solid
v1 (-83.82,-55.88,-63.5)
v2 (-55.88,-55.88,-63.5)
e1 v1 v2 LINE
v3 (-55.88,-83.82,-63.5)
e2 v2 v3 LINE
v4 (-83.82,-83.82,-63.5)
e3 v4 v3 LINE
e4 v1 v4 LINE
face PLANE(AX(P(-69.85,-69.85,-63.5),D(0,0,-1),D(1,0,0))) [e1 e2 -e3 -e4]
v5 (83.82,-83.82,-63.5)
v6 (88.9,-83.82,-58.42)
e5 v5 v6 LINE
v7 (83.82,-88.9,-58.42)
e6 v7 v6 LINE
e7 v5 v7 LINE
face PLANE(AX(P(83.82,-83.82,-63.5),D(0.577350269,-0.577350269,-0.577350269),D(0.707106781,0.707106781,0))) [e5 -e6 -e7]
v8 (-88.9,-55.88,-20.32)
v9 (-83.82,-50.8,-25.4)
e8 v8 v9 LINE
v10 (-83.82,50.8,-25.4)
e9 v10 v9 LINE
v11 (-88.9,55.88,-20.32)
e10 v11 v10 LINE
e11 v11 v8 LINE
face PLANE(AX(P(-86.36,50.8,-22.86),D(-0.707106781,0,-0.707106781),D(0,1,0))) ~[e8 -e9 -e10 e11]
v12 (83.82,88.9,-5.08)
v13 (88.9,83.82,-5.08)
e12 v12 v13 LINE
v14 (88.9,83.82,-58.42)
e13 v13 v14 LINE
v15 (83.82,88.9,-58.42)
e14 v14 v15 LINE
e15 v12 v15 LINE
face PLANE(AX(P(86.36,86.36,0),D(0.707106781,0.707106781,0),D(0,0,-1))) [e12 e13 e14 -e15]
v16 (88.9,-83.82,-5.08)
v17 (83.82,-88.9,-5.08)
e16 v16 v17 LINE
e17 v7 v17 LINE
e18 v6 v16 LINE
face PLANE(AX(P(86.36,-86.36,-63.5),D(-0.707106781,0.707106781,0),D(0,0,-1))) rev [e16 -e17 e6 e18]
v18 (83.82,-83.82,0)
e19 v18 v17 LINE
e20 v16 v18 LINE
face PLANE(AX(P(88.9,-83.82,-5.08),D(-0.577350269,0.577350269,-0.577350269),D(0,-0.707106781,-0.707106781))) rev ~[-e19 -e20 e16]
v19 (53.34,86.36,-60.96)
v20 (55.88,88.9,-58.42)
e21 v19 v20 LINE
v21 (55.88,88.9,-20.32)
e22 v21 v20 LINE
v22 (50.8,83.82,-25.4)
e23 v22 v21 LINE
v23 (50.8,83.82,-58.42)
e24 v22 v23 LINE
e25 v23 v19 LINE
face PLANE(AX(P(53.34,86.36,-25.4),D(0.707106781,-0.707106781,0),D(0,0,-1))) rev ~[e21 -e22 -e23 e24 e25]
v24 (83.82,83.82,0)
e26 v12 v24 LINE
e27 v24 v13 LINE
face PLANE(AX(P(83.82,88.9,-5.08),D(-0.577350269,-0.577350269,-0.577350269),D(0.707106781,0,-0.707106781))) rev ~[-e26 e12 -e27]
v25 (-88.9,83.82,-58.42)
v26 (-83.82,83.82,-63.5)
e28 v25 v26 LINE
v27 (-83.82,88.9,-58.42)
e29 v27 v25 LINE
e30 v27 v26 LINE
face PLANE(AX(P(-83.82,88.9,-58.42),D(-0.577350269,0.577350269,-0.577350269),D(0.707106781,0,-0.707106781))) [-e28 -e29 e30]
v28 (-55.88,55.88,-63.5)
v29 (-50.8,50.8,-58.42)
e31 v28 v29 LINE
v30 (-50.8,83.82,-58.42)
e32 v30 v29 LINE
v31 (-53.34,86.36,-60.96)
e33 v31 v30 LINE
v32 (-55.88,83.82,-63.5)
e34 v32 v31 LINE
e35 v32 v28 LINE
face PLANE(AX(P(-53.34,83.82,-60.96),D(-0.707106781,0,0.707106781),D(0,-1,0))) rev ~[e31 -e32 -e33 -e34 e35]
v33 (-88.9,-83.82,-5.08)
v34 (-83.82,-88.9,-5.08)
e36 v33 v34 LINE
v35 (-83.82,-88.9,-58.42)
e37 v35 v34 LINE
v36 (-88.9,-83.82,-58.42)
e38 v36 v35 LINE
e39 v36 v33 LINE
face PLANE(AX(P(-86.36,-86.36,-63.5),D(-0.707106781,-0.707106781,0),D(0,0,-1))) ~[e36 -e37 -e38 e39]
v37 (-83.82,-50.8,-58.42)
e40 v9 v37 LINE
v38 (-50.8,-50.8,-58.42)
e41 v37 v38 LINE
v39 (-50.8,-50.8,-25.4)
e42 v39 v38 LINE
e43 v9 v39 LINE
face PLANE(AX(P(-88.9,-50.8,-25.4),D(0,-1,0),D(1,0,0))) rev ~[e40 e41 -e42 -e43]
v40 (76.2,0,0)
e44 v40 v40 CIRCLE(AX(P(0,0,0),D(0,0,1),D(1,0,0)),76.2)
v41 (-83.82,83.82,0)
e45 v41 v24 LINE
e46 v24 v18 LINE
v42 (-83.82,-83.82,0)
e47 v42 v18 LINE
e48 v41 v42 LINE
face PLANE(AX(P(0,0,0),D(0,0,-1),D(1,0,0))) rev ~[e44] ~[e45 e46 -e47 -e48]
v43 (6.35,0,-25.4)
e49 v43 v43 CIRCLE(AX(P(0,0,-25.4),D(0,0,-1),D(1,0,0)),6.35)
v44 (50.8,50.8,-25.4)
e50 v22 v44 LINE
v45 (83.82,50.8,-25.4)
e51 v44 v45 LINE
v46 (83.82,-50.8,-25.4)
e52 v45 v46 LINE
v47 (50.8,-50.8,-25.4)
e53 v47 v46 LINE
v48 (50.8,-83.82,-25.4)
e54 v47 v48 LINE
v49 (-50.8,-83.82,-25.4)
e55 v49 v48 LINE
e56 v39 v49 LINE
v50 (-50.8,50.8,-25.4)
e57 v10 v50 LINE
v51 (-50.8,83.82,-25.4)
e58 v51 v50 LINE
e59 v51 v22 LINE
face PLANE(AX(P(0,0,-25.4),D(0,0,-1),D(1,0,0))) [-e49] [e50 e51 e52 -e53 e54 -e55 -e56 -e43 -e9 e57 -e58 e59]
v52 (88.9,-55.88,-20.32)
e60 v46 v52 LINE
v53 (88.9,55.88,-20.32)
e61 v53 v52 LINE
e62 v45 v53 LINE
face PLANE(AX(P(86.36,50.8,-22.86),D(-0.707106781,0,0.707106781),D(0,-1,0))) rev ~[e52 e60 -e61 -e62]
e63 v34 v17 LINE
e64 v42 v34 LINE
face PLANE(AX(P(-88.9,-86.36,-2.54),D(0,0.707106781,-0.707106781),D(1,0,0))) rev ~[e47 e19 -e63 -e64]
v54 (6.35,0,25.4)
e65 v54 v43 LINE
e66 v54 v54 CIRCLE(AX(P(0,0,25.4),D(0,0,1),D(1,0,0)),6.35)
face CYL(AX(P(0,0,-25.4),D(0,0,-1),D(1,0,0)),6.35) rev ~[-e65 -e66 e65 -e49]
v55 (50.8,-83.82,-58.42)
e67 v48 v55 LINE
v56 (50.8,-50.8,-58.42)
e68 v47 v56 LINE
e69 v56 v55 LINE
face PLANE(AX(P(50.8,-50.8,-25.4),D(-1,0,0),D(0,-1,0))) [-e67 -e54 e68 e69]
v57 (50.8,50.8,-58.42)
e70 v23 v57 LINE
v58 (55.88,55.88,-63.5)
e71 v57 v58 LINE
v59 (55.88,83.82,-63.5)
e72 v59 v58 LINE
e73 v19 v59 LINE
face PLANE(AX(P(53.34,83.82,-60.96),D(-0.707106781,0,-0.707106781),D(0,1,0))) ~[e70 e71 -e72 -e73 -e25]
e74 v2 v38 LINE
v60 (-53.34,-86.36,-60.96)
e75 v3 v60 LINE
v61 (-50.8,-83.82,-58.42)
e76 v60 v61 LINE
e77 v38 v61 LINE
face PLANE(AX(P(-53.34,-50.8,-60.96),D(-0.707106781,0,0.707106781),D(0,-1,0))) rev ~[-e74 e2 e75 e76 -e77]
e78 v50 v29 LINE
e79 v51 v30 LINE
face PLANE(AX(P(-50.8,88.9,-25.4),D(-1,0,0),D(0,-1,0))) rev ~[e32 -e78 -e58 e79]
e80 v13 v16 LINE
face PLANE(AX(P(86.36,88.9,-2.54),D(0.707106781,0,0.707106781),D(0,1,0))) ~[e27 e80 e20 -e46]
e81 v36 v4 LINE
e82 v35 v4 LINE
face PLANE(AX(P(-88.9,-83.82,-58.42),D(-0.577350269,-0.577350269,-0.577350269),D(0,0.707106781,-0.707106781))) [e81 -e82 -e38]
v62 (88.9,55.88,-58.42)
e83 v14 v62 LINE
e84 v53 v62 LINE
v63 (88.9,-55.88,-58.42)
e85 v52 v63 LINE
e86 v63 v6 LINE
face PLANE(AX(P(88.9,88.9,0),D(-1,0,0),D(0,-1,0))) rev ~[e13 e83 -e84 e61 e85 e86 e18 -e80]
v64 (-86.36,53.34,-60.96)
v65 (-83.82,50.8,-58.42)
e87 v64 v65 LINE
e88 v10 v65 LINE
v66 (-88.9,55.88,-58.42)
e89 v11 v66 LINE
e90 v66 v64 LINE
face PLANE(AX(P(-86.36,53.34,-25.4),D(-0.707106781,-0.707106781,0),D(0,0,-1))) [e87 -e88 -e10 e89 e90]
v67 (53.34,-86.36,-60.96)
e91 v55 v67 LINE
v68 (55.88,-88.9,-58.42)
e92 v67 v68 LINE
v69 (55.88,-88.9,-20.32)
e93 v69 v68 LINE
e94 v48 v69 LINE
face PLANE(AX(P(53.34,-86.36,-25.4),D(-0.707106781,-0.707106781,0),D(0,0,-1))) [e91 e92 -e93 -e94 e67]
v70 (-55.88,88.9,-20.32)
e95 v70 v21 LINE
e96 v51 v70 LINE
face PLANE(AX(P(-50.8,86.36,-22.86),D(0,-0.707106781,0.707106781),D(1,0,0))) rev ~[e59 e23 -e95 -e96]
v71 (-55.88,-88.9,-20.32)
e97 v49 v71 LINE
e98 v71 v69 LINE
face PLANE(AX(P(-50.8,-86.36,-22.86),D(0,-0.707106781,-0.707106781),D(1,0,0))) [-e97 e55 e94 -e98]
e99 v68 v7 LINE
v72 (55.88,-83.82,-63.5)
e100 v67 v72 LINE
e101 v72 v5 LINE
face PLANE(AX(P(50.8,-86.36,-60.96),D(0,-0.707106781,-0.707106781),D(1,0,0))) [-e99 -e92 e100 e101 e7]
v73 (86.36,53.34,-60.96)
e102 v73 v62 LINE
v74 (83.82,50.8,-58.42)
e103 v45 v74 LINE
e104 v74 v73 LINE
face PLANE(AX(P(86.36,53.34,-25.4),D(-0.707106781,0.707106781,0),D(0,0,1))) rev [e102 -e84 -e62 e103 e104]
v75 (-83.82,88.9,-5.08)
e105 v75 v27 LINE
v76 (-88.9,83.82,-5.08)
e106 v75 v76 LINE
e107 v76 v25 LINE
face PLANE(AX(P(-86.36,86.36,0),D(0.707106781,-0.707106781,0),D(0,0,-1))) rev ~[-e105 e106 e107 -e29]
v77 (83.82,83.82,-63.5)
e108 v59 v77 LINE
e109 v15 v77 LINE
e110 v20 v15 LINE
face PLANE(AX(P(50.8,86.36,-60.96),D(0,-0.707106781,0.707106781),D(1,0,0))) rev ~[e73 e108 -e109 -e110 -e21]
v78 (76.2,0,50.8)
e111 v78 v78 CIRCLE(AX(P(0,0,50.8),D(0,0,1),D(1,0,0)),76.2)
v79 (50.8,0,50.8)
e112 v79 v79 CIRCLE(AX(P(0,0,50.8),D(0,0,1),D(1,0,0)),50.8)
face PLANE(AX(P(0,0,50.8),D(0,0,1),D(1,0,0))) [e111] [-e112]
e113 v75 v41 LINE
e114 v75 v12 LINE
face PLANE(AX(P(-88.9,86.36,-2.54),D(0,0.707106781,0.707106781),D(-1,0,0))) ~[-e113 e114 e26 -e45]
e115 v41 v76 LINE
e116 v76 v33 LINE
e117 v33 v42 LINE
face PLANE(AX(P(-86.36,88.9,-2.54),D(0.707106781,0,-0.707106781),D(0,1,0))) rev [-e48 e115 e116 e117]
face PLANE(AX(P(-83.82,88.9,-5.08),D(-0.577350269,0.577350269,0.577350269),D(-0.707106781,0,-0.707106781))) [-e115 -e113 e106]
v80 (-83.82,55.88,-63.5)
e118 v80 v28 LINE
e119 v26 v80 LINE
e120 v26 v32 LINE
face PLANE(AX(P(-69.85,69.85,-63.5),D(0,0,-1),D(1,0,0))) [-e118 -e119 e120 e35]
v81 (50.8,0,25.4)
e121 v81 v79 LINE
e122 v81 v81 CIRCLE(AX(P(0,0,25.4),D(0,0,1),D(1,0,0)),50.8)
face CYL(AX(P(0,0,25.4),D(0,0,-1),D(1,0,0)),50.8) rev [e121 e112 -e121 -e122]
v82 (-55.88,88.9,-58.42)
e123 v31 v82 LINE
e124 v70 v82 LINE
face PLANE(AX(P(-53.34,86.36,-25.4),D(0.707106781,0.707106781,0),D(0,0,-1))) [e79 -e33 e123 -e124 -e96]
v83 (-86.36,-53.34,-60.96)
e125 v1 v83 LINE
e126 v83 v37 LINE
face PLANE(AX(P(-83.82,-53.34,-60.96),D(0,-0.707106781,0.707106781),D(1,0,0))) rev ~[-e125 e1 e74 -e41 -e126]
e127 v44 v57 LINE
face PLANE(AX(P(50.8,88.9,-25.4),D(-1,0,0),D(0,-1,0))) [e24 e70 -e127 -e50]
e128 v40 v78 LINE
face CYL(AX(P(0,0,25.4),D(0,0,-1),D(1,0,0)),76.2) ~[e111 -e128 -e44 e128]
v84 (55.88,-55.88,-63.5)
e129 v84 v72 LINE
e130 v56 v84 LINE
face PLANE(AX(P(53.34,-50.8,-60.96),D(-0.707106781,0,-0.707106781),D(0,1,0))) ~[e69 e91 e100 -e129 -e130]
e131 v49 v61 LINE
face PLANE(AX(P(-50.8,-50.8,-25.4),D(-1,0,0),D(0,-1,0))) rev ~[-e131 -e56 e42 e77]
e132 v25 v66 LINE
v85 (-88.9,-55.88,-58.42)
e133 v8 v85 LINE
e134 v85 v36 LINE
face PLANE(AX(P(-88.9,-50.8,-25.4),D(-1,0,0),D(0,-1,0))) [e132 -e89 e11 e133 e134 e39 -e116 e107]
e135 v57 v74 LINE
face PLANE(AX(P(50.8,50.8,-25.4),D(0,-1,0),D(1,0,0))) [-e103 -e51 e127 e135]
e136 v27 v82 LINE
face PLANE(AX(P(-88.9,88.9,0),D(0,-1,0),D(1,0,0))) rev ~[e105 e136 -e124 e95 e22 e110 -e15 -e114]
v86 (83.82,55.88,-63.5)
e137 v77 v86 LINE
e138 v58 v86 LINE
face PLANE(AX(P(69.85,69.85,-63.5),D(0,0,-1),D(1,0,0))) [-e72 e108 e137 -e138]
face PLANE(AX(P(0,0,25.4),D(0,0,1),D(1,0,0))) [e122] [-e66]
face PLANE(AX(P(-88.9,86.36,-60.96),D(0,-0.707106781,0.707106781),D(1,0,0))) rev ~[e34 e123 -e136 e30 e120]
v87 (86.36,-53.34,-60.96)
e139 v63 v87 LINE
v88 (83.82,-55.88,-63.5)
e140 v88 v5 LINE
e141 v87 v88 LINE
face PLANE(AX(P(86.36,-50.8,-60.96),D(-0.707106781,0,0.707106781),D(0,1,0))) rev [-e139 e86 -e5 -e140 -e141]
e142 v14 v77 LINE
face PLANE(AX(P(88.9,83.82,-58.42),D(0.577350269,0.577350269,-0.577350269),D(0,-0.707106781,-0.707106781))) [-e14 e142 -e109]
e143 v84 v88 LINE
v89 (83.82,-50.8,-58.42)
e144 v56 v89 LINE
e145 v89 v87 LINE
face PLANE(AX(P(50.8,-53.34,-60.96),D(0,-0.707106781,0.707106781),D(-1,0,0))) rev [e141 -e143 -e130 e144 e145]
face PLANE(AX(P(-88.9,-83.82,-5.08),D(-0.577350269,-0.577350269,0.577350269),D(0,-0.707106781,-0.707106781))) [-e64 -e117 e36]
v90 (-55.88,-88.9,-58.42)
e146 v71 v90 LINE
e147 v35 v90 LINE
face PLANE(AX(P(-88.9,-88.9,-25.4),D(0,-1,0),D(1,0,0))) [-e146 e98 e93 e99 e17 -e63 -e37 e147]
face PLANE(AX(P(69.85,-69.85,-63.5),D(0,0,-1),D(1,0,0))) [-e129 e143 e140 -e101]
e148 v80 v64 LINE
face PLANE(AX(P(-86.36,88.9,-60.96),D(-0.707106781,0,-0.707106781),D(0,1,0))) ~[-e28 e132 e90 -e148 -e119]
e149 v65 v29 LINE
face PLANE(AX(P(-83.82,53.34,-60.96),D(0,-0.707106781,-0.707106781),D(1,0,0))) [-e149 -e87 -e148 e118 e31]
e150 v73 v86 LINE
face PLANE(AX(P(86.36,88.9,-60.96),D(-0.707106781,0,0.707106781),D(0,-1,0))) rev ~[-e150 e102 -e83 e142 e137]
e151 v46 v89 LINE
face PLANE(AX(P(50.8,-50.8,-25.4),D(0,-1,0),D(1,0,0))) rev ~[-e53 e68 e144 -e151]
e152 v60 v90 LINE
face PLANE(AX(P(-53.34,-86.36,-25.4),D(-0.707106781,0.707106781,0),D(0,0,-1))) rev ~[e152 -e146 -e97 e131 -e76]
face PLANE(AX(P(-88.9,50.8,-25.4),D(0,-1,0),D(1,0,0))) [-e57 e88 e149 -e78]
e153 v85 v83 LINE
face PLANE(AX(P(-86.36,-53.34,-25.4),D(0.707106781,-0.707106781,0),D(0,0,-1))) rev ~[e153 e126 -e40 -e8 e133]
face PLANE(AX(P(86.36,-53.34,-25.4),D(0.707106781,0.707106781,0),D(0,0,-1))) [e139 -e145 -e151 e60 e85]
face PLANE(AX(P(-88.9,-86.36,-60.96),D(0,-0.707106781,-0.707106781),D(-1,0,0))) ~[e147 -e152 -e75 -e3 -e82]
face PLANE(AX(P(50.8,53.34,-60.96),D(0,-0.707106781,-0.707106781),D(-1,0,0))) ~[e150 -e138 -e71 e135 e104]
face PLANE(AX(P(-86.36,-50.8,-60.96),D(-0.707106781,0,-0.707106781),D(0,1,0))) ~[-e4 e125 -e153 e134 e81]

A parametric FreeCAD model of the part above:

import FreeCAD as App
import Part
import Sketcher
Q = App.Units.Quantity


def edges_at(feature, points):
    """Names of the edges that pass closest to the given points."""
    edges = feature.Shape.Edges
    near = lambda p: min(range(len(edges)), key=lambda i: edges[i].distToShape(Part.Vertex(*p))[0])
    return sorted({f"Edge{near(p) + 1}" for p in points})

doc = App.newDocument("Part")
body = doc.addObject("PartDesign::Body", "Body")

sketch1 = doc.addObject("Sketcher::SketchObject", "Sketch")
body.addObject(sketch1)
sketch1.AttachmentSupport = (doc.XY_Plane, [""])
sketch1.MapMode = "FlatFace"
sketch1.addGeometry(Part.Circle(App.Vector(0, 0, 0), App.Vector(0, 0, 1), 76.2), False)
sketch1.addConstraint(Sketcher.Constraint("Coincident", 0, 3, -1, 1))
sketch1.addConstraint(Sketcher.Constraint("Diameter", 0, Q("6 in")))
pad1 = doc.addObject("PartDesign::Pad", "Pad")
body.addObject(pad1)
pad1.Profile = sketch1
pad1.Length = Q("1 in")

sketch2 = doc.addObject("Sketcher::SketchObject", "Sketch001")
body.addObject(sketch2)
sketch2.AttachmentSupport = (doc.XY_Plane, [""])
sketch2.MapMode = "FlatFace"
sketch2.AttachmentOffset = App.Placement(App.Vector(0, 0, 1 * 25.4), App.Rotation())
sketch2.addGeometry(Part.Circle(App.Vector(0, 0, 0), App.Vector(0, 0, 1), 76.2), False)
sketch2.addGeometry(Part.Circle(App.Vector(0, 0, 0), App.Vector(0, 0, 1), 50.8), False)
sketch2.addConstraint(Sketcher.Constraint("Coincident", 0, 3, -1, 1))
sketch2.addConstraint(Sketcher.Constraint("Coincident", 1, 3, -1, 1))
sketch2.addConstraint(Sketcher.Constraint("Diameter", 0, Q("6 in")))
sketch2.addConstraint(Sketcher.Constraint("Diameter", 1, Q("4 in")))
pad2 = doc.addObject("PartDesign::Pad", "Pad001")
body.addObject(pad2)
pad2.Profile = sketch2
pad2.Length = Q("1 in")

sketch3 = doc.addObject("Sketcher::SketchObject", "Sketch002")
body.addObject(sketch3)
sketch3.AttachmentSupport = (doc.XY_Plane, [""])
sketch3.MapMode = "FlatFace"
sketch3.AttachmentOffset = App.Placement(App.Vector(0, 0, 1 * 25.4), App.Rotation())
sketch3.addGeometry(Part.Circle(App.Vector(0, 0, 0), App.Vector(0, 0, 1), 6.35), False)
sketch3.addConstraint(Sketcher.Constraint("Coincident", 0, 3, -1, 1))
sketch3.addConstraint(Sketcher.Constraint("Diameter", 0, Q("0.5 in")))
pocket1 = doc.addObject("PartDesign::Pocket", "Pocket")
body.addObject(pocket1)
pocket1.Profile = sketch3
pocket1.Length = Q("6.41 in")

sketch4 = doc.addObject("Sketcher::SketchObject", "Sketch003")
body.addObject(sketch4)
sketch4.AttachmentSupport = (doc.XY_Plane, [""])
sketch4.MapMode = "FlatFace"
sketch4.addGeometry(Part.LineSegment(App.Vector(-88.9, -88.9, 0), App.Vector(-88.9, 88.9, 0)), False)
sketch4.addGeometry(Part.LineSegment(App.Vector(-88.9, 88.9, 0), App.Vector(88.9, 88.9, 0)), False)
sketch4.addGeometry(Part.LineSegment(App.Vector(88.9, 88.9, 0), App.Vector(88.9, -88.9, 0)), False)
sketch4.addGeometry(Part.LineSegment(App.Vector(88.9, -88.9, 0), App.Vector(-88.9, -88.9, 0)), False)
sketch4.addConstraint(Sketcher.Constraint("Coincident", 0, 2, 1, 1))
sketch4.addConstraint(Sketcher.Constraint("Coincident", 1, 2, 2, 1))
sketch4.addConstraint(Sketcher.Constraint("Coincident", 2, 2, 3, 1))
sketch4.addConstraint(Sketcher.Constraint("Coincident", 3, 2, 0, 1))
sketch4.addConstraint(Sketcher.Constraint("Vertical", 0))
sketch4.addConstraint(Sketcher.Constraint("Horizontal", 1))
sketch4.addConstraint(Sketcher.Constraint("Vertical", 2))
sketch4.addConstraint(Sketcher.Constraint("Horizontal", 3))
sketch4.addConstraint(Sketcher.Constraint("Symmetric", 0, 2, 2, 2, -1, 1))
sketch4.addConstraint(Sketcher.Constraint("Equal", 3, 0))
sketch4.addConstraint(Sketcher.Constraint("DistanceX", 1, 1, 1, 2, Q("7 in")))
pad3 = doc.addObject("PartDesign::Pad", "Pad002")
body.addObject(pad3)
pad3.Profile = sketch4
pad3.Length = Q("1 in")
pad3.Reversed = True

sketch5 = doc.addObject("Sketcher::SketchObject", "Sketch004")
body.addObject(sketch5)
sketch5.AttachmentSupport = (doc.XY_Plane, [""])
sketch5.MapMode = "FlatFace"
sketch5.AttachmentOffset = App.Placement(App.Vector(0, 0, -1 * 25.4), App.Rotation())
sketch5.addGeometry(Part.Circle(App.Vector(0, 0, 0), App.Vector(0, 0, 1), 6.35), False)
sketch5.addConstraint(Sketcher.Constraint("Coincident", 0, 3, -1, 1))
sketch5.addConstraint(Sketcher.Constraint("Diameter", 0, Q("0.5 in")))
pocket2 = doc.addObject("PartDesign::Pocket", "Pocket001")
body.addObject(pocket2)
pocket2.Profile = sketch5
pocket2.Length = Q("2.67 in")
pocket2.Reversed = True

sketch6 = doc.addObject("Sketcher::SketchObject", "Sketch005")
body.addObject(sketch6)
sketch6.AttachmentSupport = (doc.XY_Plane, [""])
sketch6.MapMode = "FlatFace"
sketch6.AttachmentOffset = App.Placement(App.Vector(0, 0, -1 * 25.4), App.Rotation())
sketch6.addGeometry(Part.LineSegment(App.Vector(-88.9, -88.9, 0), App.Vector(-88.9, -50.8, 0)), False)
sketch6.addGeometry(Part.LineSegment(App.Vector(-88.9, -50.8, 0), App.Vector(-50.8, -50.8, 0)), False)
sketch6.addGeometry(Part.LineSegment(App.Vector(-50.8, -50.8, 0), App.Vector(-50.8, -88.9, 0)), False)
sketch6.addGeometry(Part.LineSegment(App.Vector(-50.8, -88.9, 0), App.Vector(-88.9, -88.9, 0)), False)
sketch6.addGeometry(Part.LineSegment(App.Vector(-88.9, 50.8, 0), App.Vector(-88.9, 88.9, 0)), False)
sketch6.addGeometry(Part.LineSegment(App.Vector(-88.9, 88.9, 0), App.Vector(-50.8, 88.9, 0)), False)
sketch6.addGeometry(Part.LineSegment(App.Vector(-50.8, 88.9, 0), App.Vector(-50.8, 50.8, 0)), False)
sketch6.addGeometry(Part.LineSegment(App.Vector(-50.8, 50.8, 0), App.Vector(-88.9, 50.8, 0)), False)
sketch6.addGeometry(Part.LineSegment(App.Vector(50.8, -88.9, 0), App.Vector(50.8, -50.8, 0)), False)
sketch6.addGeometry(Part.LineSegment(App.Vector(50.8, -50.8, 0), App.Vector(88.9, -50.8, 0)), False)
sketch6.addGeometry(Part.LineSegment(App.Vector(88.9, -50.8, 0), App.Vector(88.9, -88.9, 0)), False)
sketch6.addGeometry(Part.LineSegment(App.Vector(88.9, -88.9, 0), App.Vector(50.8, -88.9, 0)), False)
sketch6.addGeometry(Part.LineSegment(App.Vector(50.8, 50.8, 0), App.Vector(50.8, 88.9, 0)), False)
sketch6.addGeometry(Part.LineSegment(App.Vector(50.8, 88.9, 0), App.Vector(88.9, 88.9, 0)), False)
sketch6.addGeometry(Part.LineSegment(App.Vector(88.9, 88.9, 0), App.Vector(88.9, 50.8, 0)), False)
sketch6.addGeometry(Part.LineSegment(App.Vector(88.9, 50.8, 0), App.Vector(50.8, 50.8, 0)), False)
sketch6.addConstraint(Sketcher.Constraint("Coincident", 0, 2, 1, 1))
sketch6.addConstraint(Sketcher.Constraint("Coincident", 1, 2, 2, 1))
sketch6.addConstraint(Sketcher.Constraint("Coincident", 2, 2, 3, 1))
sketch6.addConstraint(Sketcher.Constraint("Coincident", 3, 2, 0, 1))
sketch6.addConstraint(Sketcher.Constraint("Coincident", 4, 2, 5, 1))
sketch6.addConstraint(Sketcher.Constraint("Coincident", 5, 2, 6, 1))
sketch6.addConstraint(Sketcher.Constraint("Coincident", 6, 2, 7, 1))
sketch6.addConstraint(Sketcher.Constraint("Coincident", 7, 2, 4, 1))
sketch6.addConstraint(Sketcher.Constraint("Coincident", 8, 2, 9, 1))
sketch6.addConstraint(Sketcher.Constraint("Coincident", 9, 2, 10, 1))
sketch6.addConstraint(Sketcher.Constraint("Coincident", 10, 2, 11, 1))
sketch6.addConstraint(Sketcher.Constraint("Coincident", 11, 2, 8, 1))
sketch6.addConstraint(Sketcher.Constraint("Coincident", 12, 2, 13, 1))
sketch6.addConstraint(Sketcher.Constraint("Coincident", 13, 2, 14, 1))
sketch6.addConstraint(Sketcher.Constraint("Coincident", 14, 2, 15, 1))
sketch6.addConstraint(Sketcher.Constraint("Coincident", 15, 2, 12, 1))
sketch6.addConstraint(Sketcher.Constraint("Vertical", 0))
sketch6.addConstraint(Sketcher.Constraint("Horizontal", 1))
sketch6.addConstraint(Sketcher.Constraint("Vertical", 2))
sketch6.addConstraint(Sketcher.Constraint("Horizontal", 3))
sketch6.addConstraint(Sketcher.Constraint("Vertical", 4))
sketch6.addConstraint(Sketcher.Constraint("Horizontal", 5))
sketch6.addConstraint(Sketcher.Constraint("Vertical", 6))
sketch6.addConstraint(Sketcher.Constraint("Horizontal", 7))
sketch6.addConstraint(Sketcher.Constraint("Vertical", 8))
sketch6.addConstraint(Sketcher.Constraint("Horizontal", 9))
sketch6.addConstraint(Sketcher.Constraint("Vertical", 10))
sketch6.addConstraint(Sketcher.Constraint("Horizontal", 11))
sketch6.addConstraint(Sketcher.Constraint("Vertical", 12))
sketch6.addConstraint(Sketcher.Constraint("Horizontal", 13))
sketch6.addConstraint(Sketcher.Constraint("Vertical", 14))
sketch6.addConstraint(Sketcher.Constraint("Horizontal", 15))
sketch6.addConstraint(Sketcher.Constraint("Symmetric", 6, 2, 8, 2, -1, 1))
sketch6.addConstraint(Sketcher.Constraint("Symmetric", 4, 2, 10, 2, -1, 1))
sketch6.addConstraint(Sketcher.Constraint("Symmetric", 2, 2, 12, 2, -1, 1))
sketch6.addConstraint(Sketcher.Constraint("Symmetric", 0, 2, 14, 2, -1, 1))
sketch6.addConstraint(Sketcher.Constraint("Symmetric", 1, 2, 8, 2, -2))
sketch6.addConstraint(Sketcher.Constraint("Symmetric", 3, 2, 10, 2, -2))
sketch6.addConstraint(Sketcher.Constraint("Equal", 15, 0))
sketch6.addConstraint(Sketcher.Constraint("DistanceX", 1, 1, 1, 2, Q("1.5 in")))
sketch6.addConstraint(Sketcher.Constraint("DistanceY", 0, 2, -1, 1, Q("2 in")))
sketch6.addConstraint(Sketcher.Constraint("DistanceX", 1, 2, -1, 1, Q("2 in")))
pad4 = doc.addObject("PartDesign::Pad", "Pad003")
body.addObject(pad4)
pad4.Profile = sketch6
pad4.Length = Q("1.5 in")
pad4.Reversed = True
doc.recompute()

chamfer = doc.addObject("PartDesign::Chamfer", "Chamfer")
body.addObject(chamfer)
chamfer.Base = (pad4, edges_at(pad4, [
    (0, -88.9, 0),
    (-88.9, 0, 0),
    (88.9, 0, 0),
    (0, 88.9, 0),
    (88.9, -88.9, -31.75),
    (69.85, -88.9, -63.5),
    (50.8, -88.9, -44.45),
    (0, -88.9, -25.4),
    (-50.8, -88.9, -44.45),
    (-69.85, -88.9, -63.5),
    (-88.9, -88.9, -31.75),
    (-88.9, -69.85, -63.5),
    (-88.9, -50.8, -44.45),
    (-88.9, 0, -25.4),
    (-88.9, 50.8, -44.45),
    (-88.9, 69.85, -63.5),
    (-88.9, 88.9, -31.75),
    (-69.85, 88.9, -63.5),
    (-50.8, 88.9, -44.45),
    (0, 88.9, -25.4),
    (50.8, 88.9, -44.45),
    (69.85, 88.9, -63.5),
    (88.9, 88.9, -31.75),
    (88.9, 69.85, -63.5),
    (88.9, 50.8, -44.45),
    (88.9, 0, -25.4),
    (88.9, -50.8, -44.45),
    (88.9, -69.85, -63.5),
]))
chamfer.Size = Q("0.2 in")
doc.recompute()

chamfer2 = doc.addObject("PartDesign::Chamfer", "Chamfer001")
body.addObject(chamfer2)
chamfer2.Base = (chamfer, edges_at(chamfer, [
    (-50.8, -67.31, -63.5),
    (-67.31, -50.8, -63.5),
    (50.8, -67.31, -63.5),
    (67.31, -50.8, -63.5),
    (-67.31, 50.8, -63.5),
    (-50.8, 67.31, -63.5),
    (67.31, 50.8, -63.5),
    (50.8, 67.31, -63.5),
]))
chamfer2.Size = Q("0.2 in")

doc.recompute()
